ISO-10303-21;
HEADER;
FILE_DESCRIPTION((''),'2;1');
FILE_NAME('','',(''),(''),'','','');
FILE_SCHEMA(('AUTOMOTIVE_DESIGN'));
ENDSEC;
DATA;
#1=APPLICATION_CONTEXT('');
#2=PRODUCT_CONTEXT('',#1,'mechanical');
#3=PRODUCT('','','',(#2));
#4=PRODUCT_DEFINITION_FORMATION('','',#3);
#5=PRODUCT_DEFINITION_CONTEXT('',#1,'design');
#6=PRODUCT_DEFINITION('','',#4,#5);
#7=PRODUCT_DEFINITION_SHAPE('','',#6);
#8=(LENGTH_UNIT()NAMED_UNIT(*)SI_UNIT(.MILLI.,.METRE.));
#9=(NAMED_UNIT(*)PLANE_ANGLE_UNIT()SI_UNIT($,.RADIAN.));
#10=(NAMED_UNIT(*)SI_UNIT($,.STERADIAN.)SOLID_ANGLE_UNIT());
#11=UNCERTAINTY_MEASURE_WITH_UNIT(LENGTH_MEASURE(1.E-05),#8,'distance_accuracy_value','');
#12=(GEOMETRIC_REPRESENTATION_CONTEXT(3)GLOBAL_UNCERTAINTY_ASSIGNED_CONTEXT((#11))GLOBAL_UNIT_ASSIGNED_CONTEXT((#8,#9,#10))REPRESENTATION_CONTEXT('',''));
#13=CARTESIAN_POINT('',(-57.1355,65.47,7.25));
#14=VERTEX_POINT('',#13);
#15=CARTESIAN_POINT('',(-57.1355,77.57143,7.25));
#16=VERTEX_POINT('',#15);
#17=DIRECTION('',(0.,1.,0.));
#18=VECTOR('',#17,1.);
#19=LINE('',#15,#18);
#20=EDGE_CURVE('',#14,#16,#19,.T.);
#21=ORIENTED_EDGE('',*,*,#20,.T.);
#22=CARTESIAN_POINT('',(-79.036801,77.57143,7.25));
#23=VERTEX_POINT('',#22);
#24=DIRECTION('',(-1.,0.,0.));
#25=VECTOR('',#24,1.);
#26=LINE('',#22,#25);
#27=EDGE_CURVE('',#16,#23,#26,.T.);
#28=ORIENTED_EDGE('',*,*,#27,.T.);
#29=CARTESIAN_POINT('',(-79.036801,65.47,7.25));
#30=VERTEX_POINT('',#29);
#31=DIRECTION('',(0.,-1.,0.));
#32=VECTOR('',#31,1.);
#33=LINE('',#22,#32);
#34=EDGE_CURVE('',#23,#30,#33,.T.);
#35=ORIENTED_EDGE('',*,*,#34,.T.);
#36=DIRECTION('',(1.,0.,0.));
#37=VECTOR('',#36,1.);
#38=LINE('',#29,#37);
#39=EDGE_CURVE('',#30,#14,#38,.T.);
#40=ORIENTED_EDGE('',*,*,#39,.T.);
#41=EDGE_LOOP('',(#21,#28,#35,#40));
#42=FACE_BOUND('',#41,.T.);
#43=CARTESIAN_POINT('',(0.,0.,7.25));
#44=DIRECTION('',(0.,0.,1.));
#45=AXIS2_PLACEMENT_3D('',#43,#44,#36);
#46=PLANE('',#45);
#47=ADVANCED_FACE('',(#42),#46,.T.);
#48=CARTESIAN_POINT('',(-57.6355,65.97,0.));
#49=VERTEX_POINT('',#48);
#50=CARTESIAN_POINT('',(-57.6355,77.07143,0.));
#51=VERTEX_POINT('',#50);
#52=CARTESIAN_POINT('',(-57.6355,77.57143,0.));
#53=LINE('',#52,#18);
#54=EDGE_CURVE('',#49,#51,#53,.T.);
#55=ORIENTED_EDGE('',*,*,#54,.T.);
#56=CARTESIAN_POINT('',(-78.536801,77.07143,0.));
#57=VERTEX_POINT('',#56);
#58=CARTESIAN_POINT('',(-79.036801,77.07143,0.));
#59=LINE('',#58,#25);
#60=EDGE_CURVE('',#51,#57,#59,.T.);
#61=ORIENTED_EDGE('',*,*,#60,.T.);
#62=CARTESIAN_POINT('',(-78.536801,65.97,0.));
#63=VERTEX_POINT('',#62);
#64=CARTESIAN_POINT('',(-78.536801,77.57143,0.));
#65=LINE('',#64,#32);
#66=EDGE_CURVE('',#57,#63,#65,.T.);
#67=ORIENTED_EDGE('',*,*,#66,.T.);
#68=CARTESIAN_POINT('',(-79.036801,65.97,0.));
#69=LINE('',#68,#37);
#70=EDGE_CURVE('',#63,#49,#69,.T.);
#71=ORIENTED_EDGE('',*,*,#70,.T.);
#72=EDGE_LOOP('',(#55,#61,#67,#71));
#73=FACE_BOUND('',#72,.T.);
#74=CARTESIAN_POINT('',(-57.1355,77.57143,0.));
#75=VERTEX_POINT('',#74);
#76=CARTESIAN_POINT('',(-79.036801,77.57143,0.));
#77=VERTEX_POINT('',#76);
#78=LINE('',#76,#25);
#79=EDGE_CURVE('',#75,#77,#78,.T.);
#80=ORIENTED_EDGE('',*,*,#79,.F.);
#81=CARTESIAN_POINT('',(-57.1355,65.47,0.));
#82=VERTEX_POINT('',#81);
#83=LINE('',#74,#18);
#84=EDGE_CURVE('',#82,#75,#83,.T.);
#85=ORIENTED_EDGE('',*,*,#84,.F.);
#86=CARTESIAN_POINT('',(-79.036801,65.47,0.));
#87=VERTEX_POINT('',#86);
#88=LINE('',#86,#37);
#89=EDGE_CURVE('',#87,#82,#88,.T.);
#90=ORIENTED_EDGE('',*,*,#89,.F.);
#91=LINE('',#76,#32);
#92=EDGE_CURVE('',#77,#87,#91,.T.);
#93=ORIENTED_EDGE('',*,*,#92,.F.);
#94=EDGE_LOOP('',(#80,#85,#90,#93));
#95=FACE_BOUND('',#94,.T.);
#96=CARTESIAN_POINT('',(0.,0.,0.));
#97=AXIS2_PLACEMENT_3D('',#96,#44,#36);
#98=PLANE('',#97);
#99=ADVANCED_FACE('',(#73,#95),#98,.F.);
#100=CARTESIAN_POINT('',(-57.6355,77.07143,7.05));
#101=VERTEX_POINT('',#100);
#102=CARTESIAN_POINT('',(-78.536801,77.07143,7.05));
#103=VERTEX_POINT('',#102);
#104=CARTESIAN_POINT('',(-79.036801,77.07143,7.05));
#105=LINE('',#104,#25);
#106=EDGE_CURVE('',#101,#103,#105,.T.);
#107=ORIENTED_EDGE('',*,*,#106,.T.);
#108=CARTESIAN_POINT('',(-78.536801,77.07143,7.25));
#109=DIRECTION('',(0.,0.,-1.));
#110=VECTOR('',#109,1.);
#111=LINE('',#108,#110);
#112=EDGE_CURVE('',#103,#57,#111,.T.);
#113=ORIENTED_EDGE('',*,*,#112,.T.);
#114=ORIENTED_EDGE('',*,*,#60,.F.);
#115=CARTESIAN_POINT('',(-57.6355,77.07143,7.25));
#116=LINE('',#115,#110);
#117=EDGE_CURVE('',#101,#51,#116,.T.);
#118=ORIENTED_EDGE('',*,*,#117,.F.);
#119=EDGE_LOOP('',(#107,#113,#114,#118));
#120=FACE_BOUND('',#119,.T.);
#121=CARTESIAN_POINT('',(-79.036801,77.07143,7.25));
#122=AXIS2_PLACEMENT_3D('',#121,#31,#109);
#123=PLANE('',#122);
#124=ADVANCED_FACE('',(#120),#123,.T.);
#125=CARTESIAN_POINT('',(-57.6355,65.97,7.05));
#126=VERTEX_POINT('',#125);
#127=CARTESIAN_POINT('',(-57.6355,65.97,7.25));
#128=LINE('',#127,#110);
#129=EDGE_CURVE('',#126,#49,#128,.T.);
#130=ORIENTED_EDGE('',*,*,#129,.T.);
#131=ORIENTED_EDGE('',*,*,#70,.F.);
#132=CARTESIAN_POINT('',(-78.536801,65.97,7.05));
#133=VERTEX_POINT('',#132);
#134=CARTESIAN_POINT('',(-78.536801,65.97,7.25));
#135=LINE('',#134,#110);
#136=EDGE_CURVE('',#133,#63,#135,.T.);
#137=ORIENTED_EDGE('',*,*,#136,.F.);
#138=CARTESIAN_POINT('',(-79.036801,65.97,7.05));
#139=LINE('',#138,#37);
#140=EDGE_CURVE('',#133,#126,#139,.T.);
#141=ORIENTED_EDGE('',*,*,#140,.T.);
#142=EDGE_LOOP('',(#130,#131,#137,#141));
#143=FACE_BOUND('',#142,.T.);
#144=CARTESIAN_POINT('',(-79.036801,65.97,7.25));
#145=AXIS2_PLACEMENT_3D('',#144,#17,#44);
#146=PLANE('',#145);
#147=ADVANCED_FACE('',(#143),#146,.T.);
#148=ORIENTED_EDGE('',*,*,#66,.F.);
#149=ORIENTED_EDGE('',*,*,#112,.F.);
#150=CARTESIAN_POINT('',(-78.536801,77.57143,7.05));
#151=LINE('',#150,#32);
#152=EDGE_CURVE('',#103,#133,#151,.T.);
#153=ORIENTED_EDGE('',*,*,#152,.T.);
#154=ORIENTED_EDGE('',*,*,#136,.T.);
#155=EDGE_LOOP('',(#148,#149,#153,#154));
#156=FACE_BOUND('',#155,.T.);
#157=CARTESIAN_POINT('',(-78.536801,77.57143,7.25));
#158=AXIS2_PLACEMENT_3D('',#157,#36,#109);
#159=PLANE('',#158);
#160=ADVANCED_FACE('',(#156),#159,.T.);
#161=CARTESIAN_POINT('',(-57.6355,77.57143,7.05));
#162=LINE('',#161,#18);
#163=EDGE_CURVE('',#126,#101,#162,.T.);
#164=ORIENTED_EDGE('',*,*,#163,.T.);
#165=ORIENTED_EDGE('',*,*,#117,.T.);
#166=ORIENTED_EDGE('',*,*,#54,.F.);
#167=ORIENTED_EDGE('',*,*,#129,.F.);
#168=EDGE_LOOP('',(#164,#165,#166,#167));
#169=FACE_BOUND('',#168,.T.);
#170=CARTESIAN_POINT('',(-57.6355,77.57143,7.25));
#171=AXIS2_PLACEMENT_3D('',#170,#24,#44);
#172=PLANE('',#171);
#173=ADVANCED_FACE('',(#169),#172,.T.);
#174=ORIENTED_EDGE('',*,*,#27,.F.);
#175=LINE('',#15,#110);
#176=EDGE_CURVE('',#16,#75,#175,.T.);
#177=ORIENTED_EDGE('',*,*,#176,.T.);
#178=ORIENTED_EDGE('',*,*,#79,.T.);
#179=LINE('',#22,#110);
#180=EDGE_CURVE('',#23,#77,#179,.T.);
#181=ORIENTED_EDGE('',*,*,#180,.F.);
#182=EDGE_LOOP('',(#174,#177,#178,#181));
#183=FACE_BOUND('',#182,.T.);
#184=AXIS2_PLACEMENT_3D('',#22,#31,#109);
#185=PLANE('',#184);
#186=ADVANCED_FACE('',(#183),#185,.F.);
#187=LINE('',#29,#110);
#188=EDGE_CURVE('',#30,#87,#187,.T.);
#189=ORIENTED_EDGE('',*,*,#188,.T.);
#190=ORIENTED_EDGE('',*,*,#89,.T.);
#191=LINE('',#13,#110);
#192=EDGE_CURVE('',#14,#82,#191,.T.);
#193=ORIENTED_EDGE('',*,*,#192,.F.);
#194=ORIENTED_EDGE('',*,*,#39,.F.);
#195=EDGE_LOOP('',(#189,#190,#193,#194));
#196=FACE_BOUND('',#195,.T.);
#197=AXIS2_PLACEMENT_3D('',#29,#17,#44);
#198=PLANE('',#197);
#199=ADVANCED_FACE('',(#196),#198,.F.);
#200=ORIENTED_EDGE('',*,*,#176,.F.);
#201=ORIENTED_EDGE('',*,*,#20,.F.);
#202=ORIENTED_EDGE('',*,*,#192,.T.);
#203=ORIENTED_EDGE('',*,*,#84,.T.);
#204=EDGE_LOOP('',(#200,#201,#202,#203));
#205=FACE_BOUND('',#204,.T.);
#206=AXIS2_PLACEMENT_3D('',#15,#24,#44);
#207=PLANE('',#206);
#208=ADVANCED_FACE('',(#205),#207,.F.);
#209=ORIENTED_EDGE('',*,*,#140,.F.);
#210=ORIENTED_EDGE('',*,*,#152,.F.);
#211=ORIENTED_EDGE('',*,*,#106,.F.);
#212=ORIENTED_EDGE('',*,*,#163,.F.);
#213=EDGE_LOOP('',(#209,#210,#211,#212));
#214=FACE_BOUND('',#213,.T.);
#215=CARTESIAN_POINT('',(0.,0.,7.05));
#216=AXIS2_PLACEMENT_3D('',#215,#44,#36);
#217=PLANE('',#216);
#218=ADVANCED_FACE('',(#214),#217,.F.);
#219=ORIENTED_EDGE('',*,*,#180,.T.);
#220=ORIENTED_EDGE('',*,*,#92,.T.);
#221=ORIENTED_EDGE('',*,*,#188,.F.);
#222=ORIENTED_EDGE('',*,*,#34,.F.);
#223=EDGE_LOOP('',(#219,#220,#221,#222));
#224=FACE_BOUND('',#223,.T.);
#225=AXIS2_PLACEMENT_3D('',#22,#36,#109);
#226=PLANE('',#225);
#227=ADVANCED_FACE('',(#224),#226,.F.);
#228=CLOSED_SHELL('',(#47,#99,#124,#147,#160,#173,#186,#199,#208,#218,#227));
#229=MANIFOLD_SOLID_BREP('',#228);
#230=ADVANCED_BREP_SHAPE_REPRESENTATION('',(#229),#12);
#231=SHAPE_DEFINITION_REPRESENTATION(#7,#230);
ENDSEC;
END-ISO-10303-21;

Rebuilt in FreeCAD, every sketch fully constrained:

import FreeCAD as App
import Part
import Sketcher


def faces_at(feature, points):
    """Names of the faces that lie closest to the given points."""
    faces = feature.Shape.Faces
    near = lambda p: min(range(len(faces)), key=lambda i: faces[i].distToShape(Part.Vertex(*p))[0])
    return sorted({f"Face{near(p) + 1}" for p in points})


def add_polygon(sketch, points):
    """Adds a closed chain of lines whose ends are joined by coincident constraints."""
    first, n = sketch.GeometryCount, len(points)
    for a, b in zip(points, points[1:] + points[:1]):
        sketch.addGeometry(Part.LineSegment(App.Vector(*a, 0), App.Vector(*b, 0)), False)
    for i in range(n):
        sketch.addConstraint(Sketcher.Constraint("Coincident", first + i, 2, first + (i + 1) % n, 1))

doc = App.newDocument("Part")
body = doc.addObject("PartDesign::Body", "Body")

sketch1 = doc.addObject("Sketcher::SketchObject", "Sketch")
body.addObject(sketch1)
sketch1.AttachmentSupport = (doc.XY_Plane, [""])
sketch1.MapMode = "FlatFace"
add_polygon(sketch1, [(-79, 78), (-79, 65), (-57, 65), (-57, 78)])
sketch1.addConstraint([
    Sketcher.Constraint("Vertical", 0),
    Sketcher.Constraint("Horizontal", 1),
    Sketcher.Constraint("Vertical", 2),
    Sketcher.Constraint("Horizontal", 3),
    Sketcher.Constraint("DistanceY", -1, 1, 0, 2, 65.47),
    Sketcher.Constraint("DistanceX", 1, 1, 1, 2, 21.901301),
    Sketcher.Constraint("DistanceY", 0, 2, 0, 1, 12.10143),
    Sketcher.Constraint("DistanceX", 0, 2, -1, 1, 79.036801),
])
pad1 = doc.addObject("PartDesign::Pad", "Pad")
body.addObject(pad1)
pad1.Profile = sketch1
pad1.Length = 7.25
doc.recompute()

thickness = doc.addObject("PartDesign::Thickness", "Thickness")
body.addObject(thickness)
thickness.Base = (pad1, faces_at(pad1, [(-68.086, 71.521, 0)]))
thickness.Value = 0.5
thickness.Reversed = True
thickness.Join = "Intersection"

sketch2 = doc.addObject("Sketcher::SketchObject", "Sketch001")
body.addObject(sketch2)
sketch2.AttachmentSupport = (doc.XY_Plane, [""])
sketch2.MapMode = "FlatFace"
sketch2.AttachmentOffset = App.Placement(App.Vector(0, 0, 6.75), App.Rotation())
add_polygon(sketch2, [(-79, 77), (-79, 66), (-58, 66), (-58, 77)])
sketch2.addConstraint([
    Sketcher.Constraint("Vertical", 0),
    Sketcher.Constraint("Horizontal", 1),
    Sketcher.Constraint("Vertical", 2),
    Sketcher.Constraint("Horizontal", 3),
    Sketcher.Constraint("DistanceY", -1, 1, 0, 2, 65.97),
    Sketcher.Constraint("DistanceX", 1, 1, 1, 2, 20.901301),
    Sketcher.Constraint("DistanceY", 0, 2, 0, 1, 11.10143),
    Sketcher.Constraint("DistanceX", 0, 2, -1, 1, 78.536801),
])
pocket1 = doc.addObject("PartDesign::Pocket", "Pocket")
body.addObject(pocket1)
pocket1.Profile = sketch2
pocket1.Length = 0.3
pocket1.Reversed = True

doc.recompute()
